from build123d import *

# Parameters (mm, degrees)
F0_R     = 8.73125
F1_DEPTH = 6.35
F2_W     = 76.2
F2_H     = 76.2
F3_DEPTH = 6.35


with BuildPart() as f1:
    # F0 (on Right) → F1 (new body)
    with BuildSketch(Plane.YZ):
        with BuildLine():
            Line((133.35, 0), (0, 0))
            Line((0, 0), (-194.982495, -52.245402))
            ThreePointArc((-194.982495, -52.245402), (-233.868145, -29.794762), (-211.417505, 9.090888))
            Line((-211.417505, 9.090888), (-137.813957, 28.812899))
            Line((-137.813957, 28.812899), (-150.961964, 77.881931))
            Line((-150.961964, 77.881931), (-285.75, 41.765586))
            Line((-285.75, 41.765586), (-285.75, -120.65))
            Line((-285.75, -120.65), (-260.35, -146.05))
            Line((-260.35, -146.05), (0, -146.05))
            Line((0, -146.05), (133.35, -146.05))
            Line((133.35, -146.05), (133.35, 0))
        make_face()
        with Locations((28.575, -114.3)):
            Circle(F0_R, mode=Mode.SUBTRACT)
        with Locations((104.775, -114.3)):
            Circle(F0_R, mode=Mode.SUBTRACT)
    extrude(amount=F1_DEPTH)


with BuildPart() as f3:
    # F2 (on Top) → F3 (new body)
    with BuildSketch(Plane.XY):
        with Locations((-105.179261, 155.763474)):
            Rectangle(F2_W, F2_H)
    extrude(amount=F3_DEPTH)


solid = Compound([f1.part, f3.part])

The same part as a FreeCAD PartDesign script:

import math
import FreeCAD as App
import Part
import Sketcher
from FreeCAD import Vector
Q = App.Units.Quantity


def add_polygon(sketch, points):
    """Adds a closed chain of lines whose ends are joined by coincident constraints."""
    first, n = sketch.GeometryCount, len(points)
    for a, b in zip(points, points[1:] + points[:1]):
        sketch.addGeometry(Part.LineSegment(App.Vector(*a, 0), App.Vector(*b, 0)), False)
    for i in range(n):
        sketch.addConstraint(Sketcher.Constraint("Coincident", first + i, 2, first + (i + 1) % n, 1))

doc = App.newDocument("Part")
params = doc.addObject("Spreadsheet::Sheet", "Params")
for row, (alias, value) in enumerate([
    ("sketch1_radius", "1.25 in"),
    ("sketch1_length", "3 in"),
    ("sketch1_length2", "2 in"),
    ("sketch1_diameter", "0.6875 in"),
    ("sketch1_width", "15.5 in"),
    ("pad1_length", "0.25 in"),
    ("sketch2_width", "3 in"),
    ("pad2_length", "0.25 in"),
], start=1):
    params.set(f"A{row}", alias)
    params.set(f"B{row}", "=" + value)
    params.setAlias(f"B{row}", alias)

body = doc.addObject("PartDesign::Body", "Body")

sketch1 = body.newObject("Sketcher::SketchObject", "Sketch")
sketch1.AttachmentSupport = (doc.getObject("YZ_Plane"), [""])
sketch1.MapMode = "FlatFace"
sketch1.addGeometry(Part.LineSegment(Vector(133, 0, 0), Vector(0, 0, 0)), False)
sketch1.addGeometry(Part.LineSegment(Vector(0, 0, 0), Vector(-195, -52, 0)), False)
sketch1.addGeometry(Part.ArcOfCircle(Part.Circle(Vector(-203, -22, 0), Vector(0, 0, 1), 32), math.radians(105), math.radians(285)), False)
sketch1.addGeometry(Part.LineSegment(Vector(-211, 9, 0), Vector(-138, 29, 0)), False)
sketch1.addGeometry(Part.LineSegment(Vector(-138, 29, 0), Vector(-151, 78, 0)), False)
sketch1.addGeometry(Part.LineSegment(Vector(-151, 78, 0), Vector(-286, 42, 0)), False)
sketch1.addGeometry(Part.LineSegment(Vector(-286, 42, 0), Vector(-286, -121, 0)), False)
sketch1.addGeometry(Part.LineSegment(Vector(-286, -121, 0), Vector(-260, -146, 0)), False)
sketch1.addGeometry(Part.LineSegment(Vector(-260, -146, 0), Vector(133, -146, 0)), False)
sketch1.addGeometry(Part.LineSegment(Vector(133, -146, 0), Vector(133, 0, 0)), False)
sketch1.addGeometry(Part.Circle(Vector(29, -114, 0), Vector(0, 0, 1), 9), False)
sketch1.addGeometry(Part.Circle(Vector(105, -114, 0), Vector(0, 0, 1), 9), False)
sketch1.addConstraint(Sketcher.Constraint("Coincident", 0, 2, 1, 1))
sketch1.addConstraint(Sketcher.Constraint("Tangent", 1, 2, 2, 2))
sketch1.addConstraint(Sketcher.Constraint("Tangent", 2, 1, 3, 1))
sketch1.addConstraint(Sketcher.Constraint("Coincident", 3, 2, 4, 1))
sketch1.addConstraint(Sketcher.Constraint("Coincident", 4, 2, 5, 1))
sketch1.addConstraint(Sketcher.Constraint("Coincident", 5, 2, 6, 1))
sketch1.addConstraint(Sketcher.Constraint("Coincident", 6, 2, 7, 1))
sketch1.addConstraint(Sketcher.Constraint("Coincident", 7, 2, 8, 1))
sketch1.addConstraint(Sketcher.Constraint("Coincident", 8, 2, 9, 1))
sketch1.addConstraint(Sketcher.Constraint("Coincident", 9, 2, 0, 1))
sketch1.addConstraint(Sketcher.Constraint("Horizontal", 0))
sketch1.addConstraint(Sketcher.Constraint("Vertical", 6))
sketch1.addConstraint(Sketcher.Constraint("Horizontal", 8))
sketch1.addConstraint(Sketcher.Constraint("Vertical", 9))
sketch1.addConstraint(Sketcher.Constraint("Coincident", 0, 2, -1, 1))
sketch1.addConstraint(Sketcher.Constraint("Equal", 10, 11))
sketch1.addConstraint(Sketcher.Constraint("Parallel", 1, 3))
sketch1.addConstraint(Sketcher.Constraint("Perpendicular", 3, 4))
sketch1.addConstraint(Sketcher.Constraint("Perpendicular", 4, 5))
sketch1.addConstraint(Sketcher.Constraint("Horizontal", 10, 3, 11, 3))
sketch1.addConstraint(Sketcher.Constraint("Radius", 2, Q("1.25 in")))
sketch1.addConstraint(Sketcher.Constraint("Distance", 3, Q("3 in")))
sketch1.addConstraint(Sketcher.Constraint("Distance", 4, Q("2 in")))
sketch1.addConstraint(Sketcher.Constraint("Diameter", 10, Q("0.6875 in")))
sketch1.addConstraint(Sketcher.Constraint("DistanceX", 8, 1, 8, 2, Q("15.5 in")))
sketch1.addConstraint(Sketcher.Constraint("DistanceX", 2, 3, -1, 1, Q("8 in")))
sketch1.addConstraint(Sketcher.Constraint("Angle", 1, Q("-165 deg")))
sketch1.addConstraint(Sketcher.Constraint("Angle", 7, Q("-45 deg")))
sketch1.addConstraint(Sketcher.Constraint("DistanceX", 10, 3, 11, 3, Q("3 in")))
sketch1.addConstraint(Sketcher.Constraint("DistanceX", 6, 2, 7, 2, Q("1 in")))
sketch1.addConstraint(Sketcher.Constraint("DistanceX", 0, 2, 0, 1, Q("5.25 in")))
sketch1.addConstraint(Sketcher.Constraint("DistanceY", 9, 1, 9, 2, Q("5.75 in")))
sketch1.addConstraint(Sketcher.Constraint("DistanceY", 10, 3, -1, 1, Q("4.5 in")))
sketch1.addConstraint(Sketcher.Constraint("DistanceX", -1, 1, 10, 3, Q("1.125 in")))
sketch1.setExpression("Constraints[20]", "Params.sketch1_radius")
sketch1.setExpression("Constraints[21]", "Params.sketch1_length")
sketch1.setExpression("Constraints[22]", "Params.sketch1_length2")
sketch1.setExpression("Constraints[23]", "Params.sketch1_diameter")
sketch1.setExpression("Constraints[24]", "Params.sketch1_width")
pad1 = body.newObject("PartDesign::Pad", "Pad")
pad1.Profile = sketch1
pad1.setExpression("Length", "Params.pad1_length")
body2 = doc.addObject("PartDesign::Body", "Body001")

sketch2 = body2.newObject("Sketcher::SketchObject", "Sketch001")
sketch2.AttachmentSupport = (doc.getObject("XY_Plane001"), [""])
sketch2.MapMode = "FlatFace"
add_polygon(sketch2, [(-143, 194), (-143, 118), (-67, 118), (-67, 194)])
sketch2.addConstraint(Sketcher.Constraint("Vertical", 0))
sketch2.addConstraint(Sketcher.Constraint("Horizontal", 1))
sketch2.addConstraint(Sketcher.Constraint("Vertical", 2))
sketch2.addConstraint(Sketcher.Constraint("Horizontal", 3))
sketch2.addConstraint(Sketcher.Constraint("Equal", 3, 0))
sketch2.addConstraint(Sketcher.Constraint("DistanceX", 1, 1, 1, 2, Q("3 in")))
sketch2.addConstraint(Sketcher.Constraint("DistanceX", 0, 2, -1, 1, 143.279261))
sketch2.addConstraint(Sketcher.Constraint("DistanceY", -1, 1, 0, 2, 117.663474))
sketch2.setExpression("Constraints[9]", "Params.sketch2_width")
pad2 = body2.newObject("PartDesign::Pad", "Pad001")
pad2.Profile = sketch2
pad2.setExpression("Length", "Params.pad2_length")

doc.recompute()
